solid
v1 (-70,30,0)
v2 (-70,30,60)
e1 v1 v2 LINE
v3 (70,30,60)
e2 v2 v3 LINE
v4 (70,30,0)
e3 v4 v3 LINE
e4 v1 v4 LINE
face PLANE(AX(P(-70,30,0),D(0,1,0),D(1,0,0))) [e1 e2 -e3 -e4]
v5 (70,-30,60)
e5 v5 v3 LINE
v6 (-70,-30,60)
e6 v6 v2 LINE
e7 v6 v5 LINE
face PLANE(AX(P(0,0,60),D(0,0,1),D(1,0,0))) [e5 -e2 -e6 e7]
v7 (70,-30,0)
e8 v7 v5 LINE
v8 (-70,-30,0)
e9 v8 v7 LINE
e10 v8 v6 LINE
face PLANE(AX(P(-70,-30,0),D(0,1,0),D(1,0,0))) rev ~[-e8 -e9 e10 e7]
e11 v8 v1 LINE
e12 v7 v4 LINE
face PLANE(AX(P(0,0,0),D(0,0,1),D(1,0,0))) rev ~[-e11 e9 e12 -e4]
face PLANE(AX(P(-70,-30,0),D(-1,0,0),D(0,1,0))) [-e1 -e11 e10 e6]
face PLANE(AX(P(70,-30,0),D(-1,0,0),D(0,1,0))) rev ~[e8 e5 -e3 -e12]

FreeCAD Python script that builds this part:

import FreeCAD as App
import Part
import Sketcher


def add_polygon(sketch, points):
    """Adds a closed chain of lines whose ends are joined by coincident constraints."""
    first, n = sketch.GeometryCount, len(points)
    for a, b in zip(points, points[1:] + points[:1]):
        sketch.addGeometry(Part.LineSegment(App.Vector(*a, 0), App.Vector(*b, 0)), False)
    for i in range(n):
        sketch.addConstraint(Sketcher.Constraint("Coincident", first + i, 2, first + (i + 1) % n, 1))

doc = App.newDocument("Part")
body = doc.addObject("PartDesign::Body", "Body")

sketch1 = body.newObject("Sketcher::SketchObject", "Sketch")
sketch1.AttachmentSupport = (doc.getObject("XY_Plane"), [""])
sketch1.MapMode = "FlatFace"
add_polygon(sketch1, [(-70, 30), (-70, -30), (70, -30), (70, 30)])
sketch1.addConstraint([
    Sketcher.Constraint("Vertical", 0),
    Sketcher.Constraint("Horizontal", 1),
    Sketcher.Constraint("Vertical", 2),
    Sketcher.Constraint("Horizontal", 3),
    Sketcher.Constraint("Symmetric", 0, 2, 2, 2, -1, 1),
    Sketcher.Constraint("DistanceX", 1, 1, 1, 2, 140.0),
    Sketcher.Constraint("DistanceY", 0, 2, 0, 1, 60.0),
])
pad1 = body.newObject("PartDesign::Pad", "Pad")
pad1.Profile = sketch1
pad1.Length = 60

sketch2 = body.newObject("Sketcher::SketchObject", "Sketch001")
sketch2.AttachmentSupport = (doc.getObject("XY_Plane"), [""])
sketch2.MapMode = "FlatFace"
sketch2.AttachmentOffset = App.Placement(App.Vector(0, 0, 60), App.Rotation())
sketch2.addGeometry(Part.Circle(App.Vector(0, 0, 0), App.Vector(0, 0, 1), 10), False)
sketch2.addConstraint([
    Sketcher.Constraint("Coincident", 0, 3, -1, 1),
    Sketcher.Constraint("Diameter", 0, 20.161732),
])
pocket1 = body.newObject("PartDesign::Pocket", "Pocket")
pocket1.Profile = sketch2
pocket1.Length = 18
pocket1.Reversed = True

doc.recompute()
